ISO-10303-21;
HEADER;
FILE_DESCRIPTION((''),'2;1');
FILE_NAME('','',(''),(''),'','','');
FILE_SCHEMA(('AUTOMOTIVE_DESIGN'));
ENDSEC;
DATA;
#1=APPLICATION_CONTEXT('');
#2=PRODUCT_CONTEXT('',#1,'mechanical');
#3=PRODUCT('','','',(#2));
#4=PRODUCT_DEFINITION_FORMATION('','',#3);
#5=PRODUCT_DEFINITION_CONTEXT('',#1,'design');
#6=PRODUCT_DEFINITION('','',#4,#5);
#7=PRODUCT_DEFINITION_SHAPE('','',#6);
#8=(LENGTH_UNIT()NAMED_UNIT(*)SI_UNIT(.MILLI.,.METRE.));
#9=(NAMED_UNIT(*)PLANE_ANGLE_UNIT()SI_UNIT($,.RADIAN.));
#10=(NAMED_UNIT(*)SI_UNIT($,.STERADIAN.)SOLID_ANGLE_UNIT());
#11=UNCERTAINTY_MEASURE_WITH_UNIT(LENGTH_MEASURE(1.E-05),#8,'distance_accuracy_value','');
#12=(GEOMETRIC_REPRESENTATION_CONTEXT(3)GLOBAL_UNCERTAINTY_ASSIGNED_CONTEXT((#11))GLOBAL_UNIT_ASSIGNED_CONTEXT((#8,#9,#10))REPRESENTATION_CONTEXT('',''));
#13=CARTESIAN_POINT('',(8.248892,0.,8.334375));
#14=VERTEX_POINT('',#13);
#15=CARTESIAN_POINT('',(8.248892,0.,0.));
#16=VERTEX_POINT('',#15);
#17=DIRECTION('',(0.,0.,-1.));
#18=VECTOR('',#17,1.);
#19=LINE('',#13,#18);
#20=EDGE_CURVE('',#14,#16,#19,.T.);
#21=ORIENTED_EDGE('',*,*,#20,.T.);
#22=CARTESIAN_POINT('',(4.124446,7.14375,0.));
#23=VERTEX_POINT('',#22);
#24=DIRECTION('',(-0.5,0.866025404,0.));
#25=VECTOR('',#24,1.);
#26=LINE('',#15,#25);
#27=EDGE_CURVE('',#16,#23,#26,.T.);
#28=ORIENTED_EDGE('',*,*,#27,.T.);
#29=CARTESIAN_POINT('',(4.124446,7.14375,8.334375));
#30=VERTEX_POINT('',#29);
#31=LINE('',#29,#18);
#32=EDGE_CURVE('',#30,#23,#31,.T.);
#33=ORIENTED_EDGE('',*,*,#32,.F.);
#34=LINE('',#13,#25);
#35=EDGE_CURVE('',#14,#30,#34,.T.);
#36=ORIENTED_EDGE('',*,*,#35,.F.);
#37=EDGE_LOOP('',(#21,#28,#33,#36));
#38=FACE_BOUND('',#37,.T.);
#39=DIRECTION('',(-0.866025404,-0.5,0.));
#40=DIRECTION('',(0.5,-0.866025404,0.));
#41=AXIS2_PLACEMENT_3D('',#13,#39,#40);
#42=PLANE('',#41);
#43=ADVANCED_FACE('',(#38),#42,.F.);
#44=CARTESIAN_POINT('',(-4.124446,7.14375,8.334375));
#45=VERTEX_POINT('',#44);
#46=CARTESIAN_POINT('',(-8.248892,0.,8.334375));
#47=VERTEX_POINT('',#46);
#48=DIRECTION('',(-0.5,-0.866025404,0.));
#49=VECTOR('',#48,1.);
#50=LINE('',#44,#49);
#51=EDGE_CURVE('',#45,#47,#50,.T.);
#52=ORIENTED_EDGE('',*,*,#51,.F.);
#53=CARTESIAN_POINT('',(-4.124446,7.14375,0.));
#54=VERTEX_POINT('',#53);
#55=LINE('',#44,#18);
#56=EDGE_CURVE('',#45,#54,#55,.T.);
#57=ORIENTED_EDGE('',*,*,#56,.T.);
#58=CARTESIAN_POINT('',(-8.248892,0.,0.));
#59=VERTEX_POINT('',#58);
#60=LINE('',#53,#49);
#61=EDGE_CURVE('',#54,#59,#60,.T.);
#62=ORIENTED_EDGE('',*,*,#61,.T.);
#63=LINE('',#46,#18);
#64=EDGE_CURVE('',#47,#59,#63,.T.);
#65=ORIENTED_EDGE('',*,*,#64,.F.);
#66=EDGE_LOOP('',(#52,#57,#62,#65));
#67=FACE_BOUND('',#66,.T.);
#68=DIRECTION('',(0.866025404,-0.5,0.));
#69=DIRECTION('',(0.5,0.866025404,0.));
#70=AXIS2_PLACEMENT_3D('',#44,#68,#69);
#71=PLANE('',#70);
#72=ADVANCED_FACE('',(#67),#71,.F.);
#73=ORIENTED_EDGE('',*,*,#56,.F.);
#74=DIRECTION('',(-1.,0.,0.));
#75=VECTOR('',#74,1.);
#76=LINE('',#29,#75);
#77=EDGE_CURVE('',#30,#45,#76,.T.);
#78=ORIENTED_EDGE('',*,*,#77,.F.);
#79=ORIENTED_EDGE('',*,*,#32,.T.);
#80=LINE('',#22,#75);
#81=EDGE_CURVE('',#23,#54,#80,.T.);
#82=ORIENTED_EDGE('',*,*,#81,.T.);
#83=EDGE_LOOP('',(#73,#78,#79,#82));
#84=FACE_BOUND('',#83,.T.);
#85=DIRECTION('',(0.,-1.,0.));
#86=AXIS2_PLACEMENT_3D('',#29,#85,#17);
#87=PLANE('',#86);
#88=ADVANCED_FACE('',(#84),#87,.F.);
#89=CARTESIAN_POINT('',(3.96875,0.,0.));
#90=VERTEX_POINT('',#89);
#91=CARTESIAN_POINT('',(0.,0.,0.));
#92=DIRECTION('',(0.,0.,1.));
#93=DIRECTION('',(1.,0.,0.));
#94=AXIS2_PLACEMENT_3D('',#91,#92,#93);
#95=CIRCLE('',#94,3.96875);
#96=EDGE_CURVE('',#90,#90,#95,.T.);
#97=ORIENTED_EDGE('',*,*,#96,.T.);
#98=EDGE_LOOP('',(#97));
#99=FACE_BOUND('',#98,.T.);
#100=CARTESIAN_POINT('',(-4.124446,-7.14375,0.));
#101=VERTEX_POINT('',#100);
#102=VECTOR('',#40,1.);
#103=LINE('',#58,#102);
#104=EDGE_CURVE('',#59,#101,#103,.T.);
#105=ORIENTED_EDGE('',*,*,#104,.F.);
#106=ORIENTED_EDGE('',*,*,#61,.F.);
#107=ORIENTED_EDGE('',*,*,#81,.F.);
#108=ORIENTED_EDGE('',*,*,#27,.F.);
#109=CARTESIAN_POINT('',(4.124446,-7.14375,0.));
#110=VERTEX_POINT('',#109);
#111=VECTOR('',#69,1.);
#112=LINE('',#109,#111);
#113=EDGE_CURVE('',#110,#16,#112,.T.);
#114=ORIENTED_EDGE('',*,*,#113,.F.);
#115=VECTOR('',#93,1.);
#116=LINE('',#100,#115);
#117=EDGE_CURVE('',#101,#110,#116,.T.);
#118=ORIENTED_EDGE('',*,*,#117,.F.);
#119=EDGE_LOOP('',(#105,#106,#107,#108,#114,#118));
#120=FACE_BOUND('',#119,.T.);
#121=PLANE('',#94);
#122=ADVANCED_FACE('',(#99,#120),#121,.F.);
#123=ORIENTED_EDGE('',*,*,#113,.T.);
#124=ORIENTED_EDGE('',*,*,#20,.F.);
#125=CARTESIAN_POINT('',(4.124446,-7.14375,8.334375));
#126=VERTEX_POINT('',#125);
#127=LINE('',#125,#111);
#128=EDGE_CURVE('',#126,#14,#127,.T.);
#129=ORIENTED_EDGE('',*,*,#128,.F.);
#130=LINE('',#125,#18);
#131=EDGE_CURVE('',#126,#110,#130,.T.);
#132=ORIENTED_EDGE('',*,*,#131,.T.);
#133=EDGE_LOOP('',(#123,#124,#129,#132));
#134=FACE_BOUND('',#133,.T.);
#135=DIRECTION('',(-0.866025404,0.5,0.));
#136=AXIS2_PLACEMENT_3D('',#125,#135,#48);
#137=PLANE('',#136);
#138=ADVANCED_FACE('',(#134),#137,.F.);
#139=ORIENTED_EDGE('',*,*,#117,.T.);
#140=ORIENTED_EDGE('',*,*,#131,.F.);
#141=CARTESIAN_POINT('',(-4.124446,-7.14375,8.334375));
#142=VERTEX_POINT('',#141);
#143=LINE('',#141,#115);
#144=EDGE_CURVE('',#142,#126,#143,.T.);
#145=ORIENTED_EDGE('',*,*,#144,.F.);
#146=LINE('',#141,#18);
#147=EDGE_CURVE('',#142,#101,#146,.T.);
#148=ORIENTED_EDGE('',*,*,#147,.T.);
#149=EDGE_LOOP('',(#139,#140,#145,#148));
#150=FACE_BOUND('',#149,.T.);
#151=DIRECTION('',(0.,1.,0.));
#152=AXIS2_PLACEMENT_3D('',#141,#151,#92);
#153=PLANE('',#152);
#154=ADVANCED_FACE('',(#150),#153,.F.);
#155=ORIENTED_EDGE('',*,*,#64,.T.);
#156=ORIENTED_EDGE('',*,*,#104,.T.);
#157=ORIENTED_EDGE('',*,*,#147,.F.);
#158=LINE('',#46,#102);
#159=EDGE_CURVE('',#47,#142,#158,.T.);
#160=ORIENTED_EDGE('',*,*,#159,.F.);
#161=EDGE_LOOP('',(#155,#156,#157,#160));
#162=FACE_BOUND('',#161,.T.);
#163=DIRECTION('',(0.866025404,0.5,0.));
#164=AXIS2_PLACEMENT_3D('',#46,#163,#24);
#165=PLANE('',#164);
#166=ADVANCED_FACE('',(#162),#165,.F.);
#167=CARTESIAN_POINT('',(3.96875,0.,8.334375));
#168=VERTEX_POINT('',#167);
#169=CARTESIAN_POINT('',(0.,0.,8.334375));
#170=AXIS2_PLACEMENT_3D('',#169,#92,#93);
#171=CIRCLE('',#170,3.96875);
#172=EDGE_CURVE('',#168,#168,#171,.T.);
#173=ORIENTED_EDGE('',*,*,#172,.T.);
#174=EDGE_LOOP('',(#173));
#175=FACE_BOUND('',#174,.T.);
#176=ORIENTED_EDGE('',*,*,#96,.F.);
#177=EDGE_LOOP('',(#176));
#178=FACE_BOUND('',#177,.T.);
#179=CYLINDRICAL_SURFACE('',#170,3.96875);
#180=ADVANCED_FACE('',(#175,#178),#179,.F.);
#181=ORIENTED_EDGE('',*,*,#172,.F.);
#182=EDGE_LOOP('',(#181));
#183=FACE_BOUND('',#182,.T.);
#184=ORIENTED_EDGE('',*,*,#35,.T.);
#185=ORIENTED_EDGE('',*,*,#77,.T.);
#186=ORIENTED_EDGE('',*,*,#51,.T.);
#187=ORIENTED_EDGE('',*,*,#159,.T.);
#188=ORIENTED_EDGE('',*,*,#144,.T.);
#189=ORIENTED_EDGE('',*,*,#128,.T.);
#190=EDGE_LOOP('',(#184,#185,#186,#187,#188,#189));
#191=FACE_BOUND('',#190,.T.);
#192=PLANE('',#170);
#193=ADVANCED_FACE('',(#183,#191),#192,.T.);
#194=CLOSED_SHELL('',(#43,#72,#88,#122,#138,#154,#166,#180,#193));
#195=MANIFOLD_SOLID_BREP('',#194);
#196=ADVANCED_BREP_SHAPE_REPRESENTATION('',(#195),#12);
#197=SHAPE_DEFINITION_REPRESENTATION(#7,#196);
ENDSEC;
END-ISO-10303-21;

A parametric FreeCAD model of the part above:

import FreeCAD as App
import Part
import Sketcher
from FreeCAD import Vector
Q = App.Units.Quantity


def add_polygon(sketch, points):
    """Adds a closed chain of lines whose ends are joined by coincident constraints."""
    first, n = sketch.GeometryCount, len(points)
    for a, b in zip(points, points[1:] + points[:1]):
        sketch.addGeometry(Part.LineSegment(App.Vector(*a, 0), App.Vector(*b, 0)), False)
    for i in range(n):
        sketch.addConstraint(Sketcher.Constraint("Coincident", first + i, 2, first + (i + 1) % n, 1))

doc = App.newDocument("Part")
body = doc.addObject("PartDesign::Body", "Body")

# Sketch on XY plane
sketch1 = body.newObject("Sketcher::SketchObject", "Sketch")
sketch1.AttachmentSupport = (doc.getObject("XY_Plane"), [""])
sketch1.MapMode = "FlatFace"
add_polygon(sketch1, [(-8.248892, 0), (-4.124446, -7.14375), (4.124446, -7.14375), (8.248892, 0), (4.124446, 7.14375), (-4.124446, 7.14375)])  # lines 0-5
sketch1.addConstraint([
    Sketcher.Constraint("Horizontal", 1),
    Sketcher.Constraint("Horizontal", 4),
    Sketcher.Constraint("Symmetric", 0, 2, 3, 2, -1, 1),
    Sketcher.Constraint("Symmetric", 2, 2, 5, 2, -1, 1),
    Sketcher.Constraint("PointOnObject", 2, 2, -1),
    Sketcher.Constraint("Parallel", 2, 5),
    Sketcher.Constraint("Vertical", 1, 2, 3, 2),
    Sketcher.Constraint("Angle", 0, Q("-60 deg")),
    Sketcher.Constraint("DistanceY", 0, 2, -1, 1, Q("0.28125 in")),
    Sketcher.Constraint("DistanceX", 1, 1, 1, 2, 8.248892),
])
pad1 = body.newObject("PartDesign::Pad", "Pad")
pad1.Profile = sketch1
pad1.Length = Q("0.328125 in")

# Sketch on XY plane
sketch2 = body.newObject("Sketcher::SketchObject", "Sketch001")
sketch2.AttachmentSupport = (doc.getObject("XY_Plane"), [""])
sketch2.MapMode = "FlatFace"
sketch2.AttachmentOffset = App.Placement(Vector(0, 0, 0.328125 * 25.4), App.Rotation())
sketch2.addGeometry(Part.Circle(Vector(0, 0, 0), Vector(0, 0, 1), 3.96875), False)
sketch2.addConstraint([
    Sketcher.Constraint("Coincident", 0, 3, -1, 1),
    Sketcher.Constraint("Diameter", 0, Q("0.3125 in")),
])
doc.recompute()
hole = body.newObject("PartDesign::Hole", "Hole")
hole.Profile = sketch2
hole.ThreadType = "None"
hole.Diameter = Q("0.3125 in")
hole.DepthType = "ThroughAll"

doc.recompute()
